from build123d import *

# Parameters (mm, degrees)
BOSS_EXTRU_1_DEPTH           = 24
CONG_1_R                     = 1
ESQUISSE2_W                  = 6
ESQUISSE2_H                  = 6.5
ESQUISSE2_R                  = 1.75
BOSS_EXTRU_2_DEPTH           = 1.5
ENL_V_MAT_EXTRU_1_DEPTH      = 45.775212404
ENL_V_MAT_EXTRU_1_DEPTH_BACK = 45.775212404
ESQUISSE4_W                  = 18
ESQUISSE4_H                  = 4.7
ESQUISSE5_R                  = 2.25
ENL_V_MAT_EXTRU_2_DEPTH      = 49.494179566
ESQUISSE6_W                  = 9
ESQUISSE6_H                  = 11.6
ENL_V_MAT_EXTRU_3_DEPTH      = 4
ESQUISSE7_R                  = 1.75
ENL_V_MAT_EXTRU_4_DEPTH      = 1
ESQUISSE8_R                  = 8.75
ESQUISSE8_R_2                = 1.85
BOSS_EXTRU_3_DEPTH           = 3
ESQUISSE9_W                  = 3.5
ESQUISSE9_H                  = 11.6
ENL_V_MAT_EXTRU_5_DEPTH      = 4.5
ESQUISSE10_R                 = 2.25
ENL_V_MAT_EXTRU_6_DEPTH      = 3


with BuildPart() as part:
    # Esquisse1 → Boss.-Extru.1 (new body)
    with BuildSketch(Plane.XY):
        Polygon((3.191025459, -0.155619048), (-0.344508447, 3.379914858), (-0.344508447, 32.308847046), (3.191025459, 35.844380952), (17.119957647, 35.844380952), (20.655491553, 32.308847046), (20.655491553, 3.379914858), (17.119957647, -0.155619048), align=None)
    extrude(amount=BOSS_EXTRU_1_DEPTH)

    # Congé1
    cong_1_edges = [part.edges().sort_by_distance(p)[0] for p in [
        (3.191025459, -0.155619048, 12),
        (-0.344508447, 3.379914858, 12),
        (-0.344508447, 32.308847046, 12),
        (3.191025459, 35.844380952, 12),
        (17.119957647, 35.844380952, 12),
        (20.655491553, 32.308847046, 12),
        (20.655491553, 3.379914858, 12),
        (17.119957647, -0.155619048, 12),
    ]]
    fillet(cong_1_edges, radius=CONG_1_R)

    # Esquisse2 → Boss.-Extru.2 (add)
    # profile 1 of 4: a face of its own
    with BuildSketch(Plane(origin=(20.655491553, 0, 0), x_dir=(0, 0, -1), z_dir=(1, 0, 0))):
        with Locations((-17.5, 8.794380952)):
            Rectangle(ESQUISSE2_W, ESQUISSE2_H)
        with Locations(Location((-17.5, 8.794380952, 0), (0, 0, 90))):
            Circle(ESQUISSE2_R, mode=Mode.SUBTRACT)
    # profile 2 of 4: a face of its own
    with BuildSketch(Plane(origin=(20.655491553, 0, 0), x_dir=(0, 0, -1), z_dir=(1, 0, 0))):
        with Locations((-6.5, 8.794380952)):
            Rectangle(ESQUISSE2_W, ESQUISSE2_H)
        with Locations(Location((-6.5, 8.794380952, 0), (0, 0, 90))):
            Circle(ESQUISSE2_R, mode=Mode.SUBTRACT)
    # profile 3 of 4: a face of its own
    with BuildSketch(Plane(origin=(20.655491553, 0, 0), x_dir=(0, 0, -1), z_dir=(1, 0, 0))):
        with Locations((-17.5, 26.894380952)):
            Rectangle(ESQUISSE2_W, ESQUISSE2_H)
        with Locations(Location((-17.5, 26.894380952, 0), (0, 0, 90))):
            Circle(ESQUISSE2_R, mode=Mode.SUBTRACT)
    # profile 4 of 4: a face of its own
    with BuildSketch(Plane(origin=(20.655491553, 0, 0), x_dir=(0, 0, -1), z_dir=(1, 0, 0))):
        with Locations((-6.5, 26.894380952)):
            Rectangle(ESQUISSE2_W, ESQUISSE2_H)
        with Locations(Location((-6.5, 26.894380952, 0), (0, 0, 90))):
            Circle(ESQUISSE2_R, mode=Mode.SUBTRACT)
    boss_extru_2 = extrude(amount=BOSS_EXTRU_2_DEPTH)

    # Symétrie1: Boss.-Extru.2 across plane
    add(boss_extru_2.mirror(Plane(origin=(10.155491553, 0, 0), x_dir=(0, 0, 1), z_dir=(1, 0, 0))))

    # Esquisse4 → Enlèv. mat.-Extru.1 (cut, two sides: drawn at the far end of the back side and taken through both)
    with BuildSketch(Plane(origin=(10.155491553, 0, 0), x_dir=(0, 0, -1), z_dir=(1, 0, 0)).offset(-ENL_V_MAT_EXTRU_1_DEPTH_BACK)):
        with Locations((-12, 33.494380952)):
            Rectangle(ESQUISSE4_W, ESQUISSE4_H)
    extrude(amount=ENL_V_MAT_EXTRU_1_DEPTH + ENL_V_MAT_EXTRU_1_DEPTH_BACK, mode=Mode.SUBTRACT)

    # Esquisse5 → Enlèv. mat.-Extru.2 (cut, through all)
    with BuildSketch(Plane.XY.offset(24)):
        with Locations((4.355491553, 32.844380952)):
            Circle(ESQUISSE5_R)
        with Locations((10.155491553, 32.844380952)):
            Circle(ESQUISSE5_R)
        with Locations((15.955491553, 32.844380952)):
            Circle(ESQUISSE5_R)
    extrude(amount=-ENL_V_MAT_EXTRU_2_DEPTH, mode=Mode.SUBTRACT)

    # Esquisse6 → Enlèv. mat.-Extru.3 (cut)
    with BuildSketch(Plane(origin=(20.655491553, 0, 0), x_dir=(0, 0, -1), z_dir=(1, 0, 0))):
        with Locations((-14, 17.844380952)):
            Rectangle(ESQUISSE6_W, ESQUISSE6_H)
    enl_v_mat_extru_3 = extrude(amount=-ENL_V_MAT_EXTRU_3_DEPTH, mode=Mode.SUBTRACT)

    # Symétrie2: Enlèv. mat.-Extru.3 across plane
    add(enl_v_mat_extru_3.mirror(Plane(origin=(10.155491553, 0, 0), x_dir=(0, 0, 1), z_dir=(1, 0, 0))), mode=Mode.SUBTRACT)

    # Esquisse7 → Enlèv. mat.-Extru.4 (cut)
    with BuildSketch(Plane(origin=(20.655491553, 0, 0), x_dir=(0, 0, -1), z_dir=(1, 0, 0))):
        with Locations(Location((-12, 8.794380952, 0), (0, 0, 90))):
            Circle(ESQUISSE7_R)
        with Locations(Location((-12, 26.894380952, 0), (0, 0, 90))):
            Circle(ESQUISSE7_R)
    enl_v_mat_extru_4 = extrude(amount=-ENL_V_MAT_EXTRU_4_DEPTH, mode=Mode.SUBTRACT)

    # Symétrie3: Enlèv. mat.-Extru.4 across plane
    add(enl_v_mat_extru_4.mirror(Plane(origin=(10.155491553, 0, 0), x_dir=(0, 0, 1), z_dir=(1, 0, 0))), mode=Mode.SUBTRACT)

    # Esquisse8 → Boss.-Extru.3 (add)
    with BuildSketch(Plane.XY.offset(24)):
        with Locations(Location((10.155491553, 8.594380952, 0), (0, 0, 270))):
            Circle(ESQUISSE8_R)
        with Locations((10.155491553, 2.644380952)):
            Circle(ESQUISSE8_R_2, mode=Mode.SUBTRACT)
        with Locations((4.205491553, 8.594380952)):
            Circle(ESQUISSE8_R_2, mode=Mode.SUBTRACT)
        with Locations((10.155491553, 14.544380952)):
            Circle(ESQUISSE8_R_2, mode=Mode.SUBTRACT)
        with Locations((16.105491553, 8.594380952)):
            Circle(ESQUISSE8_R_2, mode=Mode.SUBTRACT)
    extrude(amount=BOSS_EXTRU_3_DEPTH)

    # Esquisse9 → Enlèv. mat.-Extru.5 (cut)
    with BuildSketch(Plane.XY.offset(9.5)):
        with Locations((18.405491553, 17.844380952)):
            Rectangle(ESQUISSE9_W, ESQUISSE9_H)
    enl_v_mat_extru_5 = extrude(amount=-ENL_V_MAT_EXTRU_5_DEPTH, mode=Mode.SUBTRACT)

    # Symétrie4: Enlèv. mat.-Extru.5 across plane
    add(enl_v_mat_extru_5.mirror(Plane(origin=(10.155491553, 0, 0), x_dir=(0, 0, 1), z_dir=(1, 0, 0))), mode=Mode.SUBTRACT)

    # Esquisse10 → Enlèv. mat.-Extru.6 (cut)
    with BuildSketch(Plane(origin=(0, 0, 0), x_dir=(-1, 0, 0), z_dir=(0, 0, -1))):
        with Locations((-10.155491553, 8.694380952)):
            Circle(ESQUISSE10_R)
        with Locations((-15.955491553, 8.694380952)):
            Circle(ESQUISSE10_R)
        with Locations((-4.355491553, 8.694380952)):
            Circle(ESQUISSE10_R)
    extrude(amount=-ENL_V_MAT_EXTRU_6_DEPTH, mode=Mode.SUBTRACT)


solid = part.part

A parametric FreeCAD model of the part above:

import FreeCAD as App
import Part
import Sketcher
from FreeCAD import Vector


def edges_at(feature, points):
    """Names of the edges that pass closest to the given points."""
    edges = feature.Shape.Edges
    near = lambda p: min(range(len(edges)), key=lambda i: edges[i].distToShape(Part.Vertex(*p))[0])
    return sorted({f"Edge{near(p) + 1}" for p in points})


def add_polygon(sketch, points):
    """Adds a closed chain of lines whose ends are joined by coincident constraints."""
    first, n = sketch.GeometryCount, len(points)
    for a, b in zip(points, points[1:] + points[:1]):
        sketch.addGeometry(Part.LineSegment(App.Vector(*a, 0), App.Vector(*b, 0)), False)
    for i in range(n):
        sketch.addConstraint(Sketcher.Constraint("Coincident", first + i, 2, first + (i + 1) % n, 1))

doc = App.newDocument("Part")
params = doc.addObject("Spreadsheet::Sheet", "Params")
for row, (alias, value) in enumerate([
    ("sketch1_length", "5 mm"),
    ("pad1_length", "24 mm"),
    ("fillet_radius", "1 mm"),
    ("sketch2_diameter", "3.5 mm"),
    ("sketch2_height", "6 mm"),
    ("sketch2_width", "6.5 mm"),
    ("pad2_length", "1.5 mm"),
    ("sketch3_height", "18 mm"),
    ("sketch3_width", "4.7 mm"),
    ("sketch4_diameter", "4.5 mm"),
    ("sketch5_height", "9 mm"),
    ("sketch5_width", "11.6 mm"),
    ("pocket3_length", "4 mm"),
    ("sketch6_diameter", "3.5 mm"),
    ("pocket4_length", "1 mm"),
    ("sketch7_diameter", "17.5 mm"),
    ("sketch7_diameter2", "3.7 mm"),
    ("pad3_length", "3 mm"),
    ("sketch8_width", "3.5 mm"),
    ("sketch8_height", "11.6 mm"),
    ("pocket5_length", "4.5 mm"),
    ("sketch9_diameter", "4.5 mm"),
    ("pocket6_length", "3 mm"),
], start=1):
    params.set(f"A{row}", alias)
    params.set(f"B{row}", "=" + value)
    params.setAlias(f"B{row}", alias)

body = doc.addObject("PartDesign::Body", "Body")

sketch1 = body.newObject("Sketcher::SketchObject", "Sketch")
sketch1.AttachmentSupport = (doc.getObject("XY_Plane"), [""])
sketch1.MapMode = "FlatFace"
add_polygon(sketch1, [(0, 3), (3, 0), (17, 0), (21, 3), (21, 32), (17, 36), (3, 36), (0, 32)])
sketch1.addConstraint([
    Sketcher.Constraint("Horizontal", 1),
    Sketcher.Constraint("Vertical", 3),
    Sketcher.Constraint("Horizontal", 5),
    Sketcher.Constraint("Vertical", 7),
    Sketcher.Constraint("Perpendicular", 0, 2),
    Sketcher.Constraint("Perpendicular", 2, 4),
    Sketcher.Constraint("Perpendicular", 4, 6),
    Sketcher.Constraint("Horizontal", 3, 2, 6, 2),
    Sketcher.Constraint("Horizontal", 2, 2, 7, 2),
    Sketcher.Constraint("Vertical", 1, 2, 4, 2),
    Sketcher.Constraint("Vertical", 0, 2, 5, 2),
    Sketcher.Constraint("Distance", 0, 5.0),
    Sketcher.Constraint("DistanceY", 1, 2, 4, 2, 36.0),
    Sketcher.Constraint("DistanceX", 6, 2, 3, 2, 21.0),
    Sketcher.Constraint("DistanceY", 0, 2, -1, 1, 0.155619),
    Sketcher.Constraint("DistanceX", -1, 1, 2, 2, 20.655492),
])
sketch1.setExpression("Constraints[19]", "Params.sketch1_length")
pad1 = body.newObject("PartDesign::Pad", "Pad")
pad1.Profile = sketch1
pad1.setExpression("Length", "Params.pad1_length")
doc.recompute()

fillet = body.newObject("PartDesign::Fillet", "Fillet")
fillet.Base = (pad1, edges_at(pad1, [
    (3.191, -0.156, 12),
    (-0.345, 3.38, 12),
    (-0.345, 32.309, 12),
    (3.191, 35.844, 12),
    (17.12, 35.844, 12),
    (20.655, 32.309, 12),
    (20.655, 3.38, 12),
    (17.12, -0.156, 12),
]))
fillet.setExpression("Radius", "Params.fillet_radius")

sketch2 = body.newObject("Sketcher::SketchObject", "Sketch001")
sketch2.AttachmentSupport = (doc.getObject("YZ_Plane"), [""])
sketch2.MapMode = "FlatFace"
sketch2.AttachmentOffset = App.Placement(Vector(0, 0, 20.655492), App.Rotation())
add_polygon(sketch2, [(12, 20.5), (5.5, 20.5), (5.5, 14.5), (12, 14.5)])
sketch2.addGeometry(Part.Circle(Vector(8.8, 17.5, 0), Vector(0, 0, 1), 1.8), False)
add_polygon(sketch2, [(12, 9.5), (5.5, 9.5), (5.5, 3.5), (12, 3.5)])
sketch2.addGeometry(Part.Circle(Vector(8.8, 6.5, 0), Vector(0, 0, 1), 1.8), False)
add_polygon(sketch2, [(30.1, 20.5), (23.6, 20.5), (23.6, 14.5), (30.1, 14.5)])
sketch2.addGeometry(Part.Circle(Vector(26.9, 17.5, 0), Vector(0, 0, 1), 1.8), False)
add_polygon(sketch2, [(30.1, 9.5), (23.6, 9.5), (23.6, 3.5), (30.1, 3.5)])
sketch2.addGeometry(Part.Circle(Vector(26.9, 6.5, 0), Vector(0, 0, 1), 1.8), False)
sketch2.addConstraint([
    Sketcher.Constraint("Horizontal", 0),
    Sketcher.Constraint("Vertical", 1),
    Sketcher.Constraint("Horizontal", 2),
    Sketcher.Constraint("Vertical", 3),
    Sketcher.Constraint("Horizontal", 5),
    Sketcher.Constraint("Vertical", 6),
    Sketcher.Constraint("Horizontal", 7),
    Sketcher.Constraint("Vertical", 8),
    Sketcher.Constraint("Horizontal", 10),
    Sketcher.Constraint("Vertical", 11),
    Sketcher.Constraint("Horizontal", 12),
    Sketcher.Constraint("Vertical", 13),
    Sketcher.Constraint("Horizontal", 15),
    Sketcher.Constraint("Vertical", 16),
    Sketcher.Constraint("Horizontal", 17),
    Sketcher.Constraint("Vertical", 18),
    Sketcher.Constraint("Equal", 4, 9),
    Sketcher.Constraint("Equal", 9, 14),
    Sketcher.Constraint("Equal", 14, 19),
    Sketcher.Constraint("Horizontal", 4, 3, 14, 3),
    Sketcher.Constraint("Horizontal", 9, 3, 19, 3),
    Sketcher.Constraint("Horizontal", 3, 2, 10, 2),
    Sketcher.Constraint("Horizontal", 2, 2, 11, 2),
    Sketcher.Constraint("Horizontal", 8, 2, 15, 2),
    Sketcher.Constraint("Horizontal", 7, 2, 16, 2),
    Sketcher.Constraint("Vertical", 4, 3, 9, 3),
    Sketcher.Constraint("Vertical", 14, 3, 19, 3),
    Sketcher.Constraint("Vertical", 1, 2, 5, 2),
    Sketcher.Constraint("Vertical", 3, 2, 7, 2),
    Sketcher.Constraint("Vertical", 11, 2, 15, 2),
    Sketcher.Constraint("Vertical", 13, 2, 17, 2),
    Sketcher.Constraint("Equal", 7, 10),
    Sketcher.Constraint("Equal", 3, 6),
    Sketcher.Constraint("Diameter", 4, 3.5),
    Sketcher.Constraint("DistanceY", 1, 2, 1, 1, 6.0),
    Sketcher.Constraint("DistanceX", 0, 2, 0, 1, 6.5),
    Sketcher.Constraint("DistanceY", 9, 3, 4, 3, 11.0),
    Sketcher.Constraint("DistanceY", 4, 3, 0, 2, 3.0),
    Sketcher.Constraint("DistanceY", 9, 3, 5, 2, 3.0),
    Sketcher.Constraint("DistanceY", -1, 1, 4, 3, 17.5),
    Sketcher.Constraint("DistanceX", 4, 3, 14, 3, 18.1),
    Sketcher.Constraint("DistanceX", 3, 2, 10, 2, 11.6),
    Sketcher.Constraint("DistanceX", 0, 2, 4, 3, 3.25),
    Sketcher.Constraint("DistanceX", -1, 1, 4, 3, 8.794381),
])
sketch2.setExpression("Constraints[49]", "Params.sketch2_diameter")
sketch2.setExpression("Constraints[50]", "Params.sketch2_height")
sketch2.setExpression("Constraints[51]", "Params.sketch2_width")
pad2 = body.newObject("PartDesign::Pad", "Pad001")
pad2.Profile = sketch2
pad2.setExpression("Length", "Params.pad2_length")
doc.recompute()

datumplane = body.newObject("PartDesign::Plane", "DatumPlane")
datumplane.AttachmentSupport = (doc.getObject("YZ_Plane"), [""])
datumplane.MapMode = "FlatFace"
datumplane.AttachmentOffset = App.Placement(Vector(0, 0, 10.155492), App.Rotation())
mirrored = body.newObject("PartDesign::Mirrored", "Mirrored")
mirrored.Originals = [pad2]
mirrored.MirrorPlane = (datumplane, [""])
body.Tip = mirrored

sketch3 = body.newObject("Sketcher::SketchObject", "Sketch002")
sketch3.AttachmentSupport = (doc.getObject("YZ_Plane"), [""])
sketch3.MapMode = "FlatFace"
sketch3.AttachmentOffset = App.Placement(Vector(0, 0, 10.155492), App.Rotation())
add_polygon(sketch3, [(35.8, 21), (31.1, 21), (31.1, 3), (35.8, 3)])
sketch3.addConstraint([
    Sketcher.Constraint("Horizontal", 0),
    Sketcher.Constraint("Vertical", 1),
    Sketcher.Constraint("Horizontal", 2),
    Sketcher.Constraint("Vertical", 3),
    Sketcher.Constraint("DistanceY", 1, 2, 1, 1, 18.0),
    Sketcher.Constraint("DistanceX", 0, 2, 0, 1, 4.7),
    Sketcher.Constraint("DistanceY", -1, 1, 0, 2, 21.0),
    Sketcher.Constraint("DistanceX", -1, 1, 0, 2, 31.144381),
])
sketch3.setExpression("Constraints[8]", "Params.sketch3_height")
sketch3.setExpression("Constraints[9]", "Params.sketch3_width")
pocket1 = body.newObject("PartDesign::Pocket", "Pocket")
pocket1.Profile = sketch3
pocket1.Type = "ThroughAll"
pocket1.Midplane = True

sketch4 = body.newObject("Sketcher::SketchObject", "Sketch003")
sketch4.AttachmentSupport = (doc.getObject("XY_Plane"), [""])
sketch4.MapMode = "FlatFace"
sketch4.AttachmentOffset = App.Placement(Vector(0, 0, 24), App.Rotation())
sketch4.addGeometry([
    Part.Circle(Vector(4.4, 32.8, 0), Vector(0, 0, 1), 2.2),
    Part.Circle(Vector(10.2, 32.8, 0), Vector(0, 0, 1), 2.2),
    Part.Circle(Vector(16, 32.8, 0), Vector(0, 0, 1), 2.2),
], False)
sketch4.addConstraint([
    Sketcher.Constraint("Equal", 0, 1),
    Sketcher.Constraint("Equal", 1, 2),
    Sketcher.Constraint("Horizontal", 0, 3, 1, 3),
    Sketcher.Constraint("Horizontal", 1, 3, 2, 3),
    Sketcher.Constraint("Diameter", 0, 4.5),
    Sketcher.Constraint("DistanceX", 0, 3, 1, 3, 5.8),
    Sketcher.Constraint("DistanceX", 1, 3, 2, 3, 5.8),
    Sketcher.Constraint("DistanceX", -1, 1, 0, 3, 4.355492),
    Sketcher.Constraint("DistanceY", -1, 1, 0, 3, 32.844381),
])
sketch4.setExpression("Constraints[4]", "Params.sketch4_diameter")
pocket2 = body.newObject("PartDesign::Pocket", "Pocket001")
pocket2.Profile = sketch4
pocket2.Type = "ThroughAll"

sketch5 = body.newObject("Sketcher::SketchObject", "Sketch004")
sketch5.AttachmentSupport = (doc.getObject("YZ_Plane"), [""])
sketch5.MapMode = "FlatFace"
sketch5.AttachmentOffset = App.Placement(Vector(0, 0, 20.655492), App.Rotation())
add_polygon(sketch5, [(24, 18), (12, 18), (12, 10), (24, 10)])
sketch5.addConstraint([
    Sketcher.Constraint("Horizontal", 0),
    Sketcher.Constraint("Vertical", 1),
    Sketcher.Constraint("Horizontal", 2),
    Sketcher.Constraint("Vertical", 3),
    Sketcher.Constraint("DistanceY", 1, 2, 1, 1, 9.0),
    Sketcher.Constraint("DistanceX", 0, 2, 0, 1, 11.6),
    Sketcher.Constraint("DistanceY", -1, 1, 0, 2, 18.5),
    Sketcher.Constraint("DistanceX", -1, 1, 0, 2, 12.044381),
])
sketch5.setExpression("Constraints[8]", "Params.sketch5_height")
sketch5.setExpression("Constraints[9]", "Params.sketch5_width")
pocket3 = body.newObject("PartDesign::Pocket", "Pocket002")
pocket3.Profile = sketch5
pocket3.setExpression("Length", "Params.pocket3_length")
doc.recompute()

datumplane2 = body.newObject("PartDesign::Plane", "DatumPlane001")
datumplane2.AttachmentSupport = (doc.getObject("YZ_Plane"), [""])
datumplane2.MapMode = "FlatFace"
datumplane2.AttachmentOffset = App.Placement(Vector(0, 0, 10.155492), App.Rotation())
mirrored2 = body.newObject("PartDesign::Mirrored", "Mirrored001")
mirrored2.Originals = [pocket3]
mirrored2.MirrorPlane = (datumplane2, [""])
body.Tip = mirrored2

sketch6 = body.newObject("Sketcher::SketchObject", "Sketch005")
sketch6.AttachmentSupport = (doc.getObject("YZ_Plane"), [""])
sketch6.MapMode = "FlatFace"
sketch6.AttachmentOffset = App.Placement(Vector(0, 0, 20.655492), App.Rotation())
sketch6.addGeometry([
    Part.Circle(Vector(8.8, 12, 0), Vector(0, 0, 1), 1.8),
    Part.Circle(Vector(26.9, 12, 0), Vector(0, 0, 1), 1.8),
], False)
sketch6.addConstraint([
    Sketcher.Constraint("Equal", 0, 1),
    Sketcher.Constraint("Horizontal", 0, 3, 1, 3),
    Sketcher.Constraint("Diameter", 0, 3.5),
    Sketcher.Constraint("DistanceY", -1, 1, 0, 3, 12.0),
    Sketcher.Constraint("DistanceX", 0, 3, 1, 3, 18.1),
    Sketcher.Constraint("DistanceX", -1, 1, 0, 3, 8.794381),
])
sketch6.setExpression("Constraints[2]", "Params.sketch6_diameter")
pocket4 = body.newObject("PartDesign::Pocket", "Pocket003")
pocket4.Profile = sketch6
pocket4.setExpression("Length", "Params.pocket4_length")
doc.recompute()

datumplane3 = body.newObject("PartDesign::Plane", "DatumPlane002")
datumplane3.AttachmentSupport = (doc.getObject("YZ_Plane"), [""])
datumplane3.MapMode = "FlatFace"
datumplane3.AttachmentOffset = App.Placement(Vector(0, 0, 10.155492), App.Rotation())
mirrored3 = body.newObject("PartDesign::Mirrored", "Mirrored002")
mirrored3.Originals = [pocket4]
mirrored3.MirrorPlane = (datumplane3, [""])
body.Tip = mirrored3

sketch7 = body.newObject("Sketcher::SketchObject", "Sketch006")
sketch7.AttachmentSupport = (doc.getObject("XY_Plane"), [""])
sketch7.MapMode = "FlatFace"
sketch7.AttachmentOffset = App.Placement(Vector(0, 0, 24), App.Rotation())
sketch7.addGeometry([
    Part.Circle(Vector(10.2, 8.6, 0), Vector(0, 0, 1), 8.8),
    Part.Circle(Vector(10.2, 14.5, 0), Vector(0, 0, 1), 1.9),
    Part.Circle(Vector(4.2, 8.6, 0), Vector(0, 0, 1), 1.9),
    Part.Circle(Vector(16.1, 8.6, 0), Vector(0, 0, 1), 1.9),
    Part.Circle(Vector(10.2, 2.6, 0), Vector(0, 0, 1), 1.9),
], False)
sketch7.addConstraint([
    Sketcher.Constraint("Equal", 1, 2),
    Sketcher.Constraint("Equal", 2, 3),
    Sketcher.Constraint("Equal", 3, 4),
    Sketcher.Constraint("Horizontal", 0, 3, 2, 3),
    Sketcher.Constraint("Horizontal", 2, 3, 3, 3),
    Sketcher.Constraint("Vertical", 0, 3, 1, 3),
    Sketcher.Constraint("Vertical", 1, 3, 4, 3),
    Sketcher.Constraint("Diameter", 0, 17.5),
    Sketcher.Constraint("Diameter", 1, 3.7),
    Sketcher.Constraint("DistanceX", 2, 3, 3, 3, 11.9),
    Sketcher.Constraint("DistanceY", 4, 3, 1, 3, 11.9),
    Sketcher.Constraint("DistanceY", 0, 3, 1, 3, 5.95),
    Sketcher.Constraint("DistanceX", 2, 3, 0, 3, 5.95),
    Sketcher.Constraint("DistanceX", -1, 1, 0, 3, 10.155492),
    Sketcher.Constraint("DistanceY", -1, 1, 0, 3, 8.594381),
])
sketch7.setExpression("Constraints[7]", "Params.sketch7_diameter")
sketch7.setExpression("Constraints[8]", "Params.sketch7_diameter2")
pad3 = body.newObject("PartDesign::Pad", "Pad002")
pad3.Profile = sketch7
pad3.setExpression("Length", "Params.pad3_length")

sketch8 = body.newObject("Sketcher::SketchObject", "Sketch007")
sketch8.AttachmentSupport = (doc.getObject("XY_Plane"), [""])
sketch8.MapMode = "FlatFace"
sketch8.AttachmentOffset = App.Placement(Vector(0, 0, 9.5), App.Rotation())
add_polygon(sketch8, [(16.7, 23.6), (16.7, 12), (20.2, 12), (20.2, 23.6)])
sketch8.addConstraint([
    Sketcher.Constraint("Vertical", 0),
    Sketcher.Constraint("Horizontal", 1),
    Sketcher.Constraint("Vertical", 2),
    Sketcher.Constraint("Horizontal", 3),
    Sketcher.Constraint("DistanceX", 1, 1, 1, 2, 3.5),
    Sketcher.Constraint("DistanceY", 0, 2, 0, 1, 11.6),
    Sketcher.Constraint("DistanceX", -1, 1, 0, 2, 16.655492),
    Sketcher.Constraint("DistanceY", -1, 1, 0, 2, 12.044381),
])
sketch8.setExpression("Constraints[8]", "Params.sketch8_width")
sketch8.setExpression("Constraints[9]", "Params.sketch8_height")
pocket5 = body.newObject("PartDesign::Pocket", "Pocket004")
pocket5.Profile = sketch8
pocket5.setExpression("Length", "Params.pocket5_length")
doc.recompute()

datumplane4 = body.newObject("PartDesign::Plane", "DatumPlane003")
datumplane4.AttachmentSupport = (doc.getObject("YZ_Plane"), [""])
datumplane4.MapMode = "FlatFace"
datumplane4.AttachmentOffset = App.Placement(Vector(0, 0, 10.155492), App.Rotation())
mirrored4 = body.newObject("PartDesign::Mirrored", "Mirrored003")
mirrored4.Originals = [pocket5]
mirrored4.MirrorPlane = (datumplane4, [""])
body.Tip = mirrored4

sketch9 = body.newObject("Sketcher::SketchObject", "Sketch008")
sketch9.AttachmentSupport = (doc.getObject("XY_Plane"), [""])
sketch9.MapMode = "FlatFace"
sketch9.addGeometry([
    Part.Circle(Vector(10.2, 8.7, 0), Vector(0, 0, 1), 2.2),
    Part.Circle(Vector(16, 8.7, 0), Vector(0, 0, 1), 2.2),
    Part.Circle(Vector(4.4, 8.7, 0), Vector(0, 0, 1), 2.2),
], False)
sketch9.addConstraint([
    Sketcher.Constraint("Equal", 0, 1),
    Sketcher.Constraint("Equal", 1, 2),
    Sketcher.Constraint("Horizontal", 0, 3, 1, 3),
    Sketcher.Constraint("Horizontal", 1, 3, 2, 3),
    Sketcher.Constraint("Diameter", 0, 4.5),
    Sketcher.Constraint("DistanceX", 0, 3, 1, 3, 5.8),
    Sketcher.Constraint("DistanceX", 2, 3, 0, 3, 5.8),
    Sketcher.Constraint("DistanceX", -1, 1, 0, 3, 10.155492),
    Sketcher.Constraint("DistanceY", -1, 1, 0, 3, 8.694381),
])
sketch9.setExpression("Constraints[4]", "Params.sketch9_diameter")
pocket6 = body.newObject("PartDesign::Pocket", "Pocket005")
pocket6.Profile = sketch9
pocket6.setExpression("Length", "Params.pocket6_length")
pocket6.Reversed = True

doc.recompute()
